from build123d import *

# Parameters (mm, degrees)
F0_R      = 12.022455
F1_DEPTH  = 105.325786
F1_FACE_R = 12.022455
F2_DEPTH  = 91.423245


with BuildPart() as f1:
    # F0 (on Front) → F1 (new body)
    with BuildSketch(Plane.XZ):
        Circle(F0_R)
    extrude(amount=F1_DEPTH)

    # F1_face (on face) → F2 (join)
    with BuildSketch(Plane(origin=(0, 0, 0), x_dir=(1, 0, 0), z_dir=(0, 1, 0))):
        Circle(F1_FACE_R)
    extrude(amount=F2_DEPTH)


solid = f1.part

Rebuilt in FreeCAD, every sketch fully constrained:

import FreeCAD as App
import Part
import Sketcher

doc = App.newDocument("Part")
body = doc.addObject("PartDesign::Body", "Body")

# Sketch on XZ plane
sketch1 = doc.addObject("Sketcher::SketchObject", "Sketch")
body.addObject(sketch1)
sketch1.AttachmentSupport = (doc.XZ_Plane, [""])
sketch1.MapMode = "FlatFace"
sketch1.addGeometry(Part.Circle(App.Vector(0, 0, 0), App.Vector(0, 0, 1), 12), False)
sketch1.addConstraint([
    Sketcher.Constraint("Coincident", 0, 3, -1, 1),
    Sketcher.Constraint("Diameter", 0, 24.04491),
])
pad1 = doc.addObject("PartDesign::Pad", "Pad")
body.addObject(pad1)
pad1.Profile = sketch1
pad1.Length = 105.325786

# Sketch on XZ plane
sketch2 = doc.addObject("Sketcher::SketchObject", "Sketch001")
body.addObject(sketch2)
sketch2.AttachmentSupport = (doc.XZ_Plane, [""])
sketch2.MapMode = "FlatFace"
sketch2.addGeometry(Part.Circle(App.Vector(0, 0, 0), App.Vector(0, 0, 1), 12), False)
sketch2.addConstraint([
    Sketcher.Constraint("Coincident", 0, 3, -1, 1),
    Sketcher.Constraint("Diameter", 0, 24.04491),
])
pad2 = doc.addObject("PartDesign::Pad", "Pad001")
body.addObject(pad2)
pad2.Profile = sketch2
pad2.Length = 91.423245
pad2.Reversed = True

doc.recompute()
